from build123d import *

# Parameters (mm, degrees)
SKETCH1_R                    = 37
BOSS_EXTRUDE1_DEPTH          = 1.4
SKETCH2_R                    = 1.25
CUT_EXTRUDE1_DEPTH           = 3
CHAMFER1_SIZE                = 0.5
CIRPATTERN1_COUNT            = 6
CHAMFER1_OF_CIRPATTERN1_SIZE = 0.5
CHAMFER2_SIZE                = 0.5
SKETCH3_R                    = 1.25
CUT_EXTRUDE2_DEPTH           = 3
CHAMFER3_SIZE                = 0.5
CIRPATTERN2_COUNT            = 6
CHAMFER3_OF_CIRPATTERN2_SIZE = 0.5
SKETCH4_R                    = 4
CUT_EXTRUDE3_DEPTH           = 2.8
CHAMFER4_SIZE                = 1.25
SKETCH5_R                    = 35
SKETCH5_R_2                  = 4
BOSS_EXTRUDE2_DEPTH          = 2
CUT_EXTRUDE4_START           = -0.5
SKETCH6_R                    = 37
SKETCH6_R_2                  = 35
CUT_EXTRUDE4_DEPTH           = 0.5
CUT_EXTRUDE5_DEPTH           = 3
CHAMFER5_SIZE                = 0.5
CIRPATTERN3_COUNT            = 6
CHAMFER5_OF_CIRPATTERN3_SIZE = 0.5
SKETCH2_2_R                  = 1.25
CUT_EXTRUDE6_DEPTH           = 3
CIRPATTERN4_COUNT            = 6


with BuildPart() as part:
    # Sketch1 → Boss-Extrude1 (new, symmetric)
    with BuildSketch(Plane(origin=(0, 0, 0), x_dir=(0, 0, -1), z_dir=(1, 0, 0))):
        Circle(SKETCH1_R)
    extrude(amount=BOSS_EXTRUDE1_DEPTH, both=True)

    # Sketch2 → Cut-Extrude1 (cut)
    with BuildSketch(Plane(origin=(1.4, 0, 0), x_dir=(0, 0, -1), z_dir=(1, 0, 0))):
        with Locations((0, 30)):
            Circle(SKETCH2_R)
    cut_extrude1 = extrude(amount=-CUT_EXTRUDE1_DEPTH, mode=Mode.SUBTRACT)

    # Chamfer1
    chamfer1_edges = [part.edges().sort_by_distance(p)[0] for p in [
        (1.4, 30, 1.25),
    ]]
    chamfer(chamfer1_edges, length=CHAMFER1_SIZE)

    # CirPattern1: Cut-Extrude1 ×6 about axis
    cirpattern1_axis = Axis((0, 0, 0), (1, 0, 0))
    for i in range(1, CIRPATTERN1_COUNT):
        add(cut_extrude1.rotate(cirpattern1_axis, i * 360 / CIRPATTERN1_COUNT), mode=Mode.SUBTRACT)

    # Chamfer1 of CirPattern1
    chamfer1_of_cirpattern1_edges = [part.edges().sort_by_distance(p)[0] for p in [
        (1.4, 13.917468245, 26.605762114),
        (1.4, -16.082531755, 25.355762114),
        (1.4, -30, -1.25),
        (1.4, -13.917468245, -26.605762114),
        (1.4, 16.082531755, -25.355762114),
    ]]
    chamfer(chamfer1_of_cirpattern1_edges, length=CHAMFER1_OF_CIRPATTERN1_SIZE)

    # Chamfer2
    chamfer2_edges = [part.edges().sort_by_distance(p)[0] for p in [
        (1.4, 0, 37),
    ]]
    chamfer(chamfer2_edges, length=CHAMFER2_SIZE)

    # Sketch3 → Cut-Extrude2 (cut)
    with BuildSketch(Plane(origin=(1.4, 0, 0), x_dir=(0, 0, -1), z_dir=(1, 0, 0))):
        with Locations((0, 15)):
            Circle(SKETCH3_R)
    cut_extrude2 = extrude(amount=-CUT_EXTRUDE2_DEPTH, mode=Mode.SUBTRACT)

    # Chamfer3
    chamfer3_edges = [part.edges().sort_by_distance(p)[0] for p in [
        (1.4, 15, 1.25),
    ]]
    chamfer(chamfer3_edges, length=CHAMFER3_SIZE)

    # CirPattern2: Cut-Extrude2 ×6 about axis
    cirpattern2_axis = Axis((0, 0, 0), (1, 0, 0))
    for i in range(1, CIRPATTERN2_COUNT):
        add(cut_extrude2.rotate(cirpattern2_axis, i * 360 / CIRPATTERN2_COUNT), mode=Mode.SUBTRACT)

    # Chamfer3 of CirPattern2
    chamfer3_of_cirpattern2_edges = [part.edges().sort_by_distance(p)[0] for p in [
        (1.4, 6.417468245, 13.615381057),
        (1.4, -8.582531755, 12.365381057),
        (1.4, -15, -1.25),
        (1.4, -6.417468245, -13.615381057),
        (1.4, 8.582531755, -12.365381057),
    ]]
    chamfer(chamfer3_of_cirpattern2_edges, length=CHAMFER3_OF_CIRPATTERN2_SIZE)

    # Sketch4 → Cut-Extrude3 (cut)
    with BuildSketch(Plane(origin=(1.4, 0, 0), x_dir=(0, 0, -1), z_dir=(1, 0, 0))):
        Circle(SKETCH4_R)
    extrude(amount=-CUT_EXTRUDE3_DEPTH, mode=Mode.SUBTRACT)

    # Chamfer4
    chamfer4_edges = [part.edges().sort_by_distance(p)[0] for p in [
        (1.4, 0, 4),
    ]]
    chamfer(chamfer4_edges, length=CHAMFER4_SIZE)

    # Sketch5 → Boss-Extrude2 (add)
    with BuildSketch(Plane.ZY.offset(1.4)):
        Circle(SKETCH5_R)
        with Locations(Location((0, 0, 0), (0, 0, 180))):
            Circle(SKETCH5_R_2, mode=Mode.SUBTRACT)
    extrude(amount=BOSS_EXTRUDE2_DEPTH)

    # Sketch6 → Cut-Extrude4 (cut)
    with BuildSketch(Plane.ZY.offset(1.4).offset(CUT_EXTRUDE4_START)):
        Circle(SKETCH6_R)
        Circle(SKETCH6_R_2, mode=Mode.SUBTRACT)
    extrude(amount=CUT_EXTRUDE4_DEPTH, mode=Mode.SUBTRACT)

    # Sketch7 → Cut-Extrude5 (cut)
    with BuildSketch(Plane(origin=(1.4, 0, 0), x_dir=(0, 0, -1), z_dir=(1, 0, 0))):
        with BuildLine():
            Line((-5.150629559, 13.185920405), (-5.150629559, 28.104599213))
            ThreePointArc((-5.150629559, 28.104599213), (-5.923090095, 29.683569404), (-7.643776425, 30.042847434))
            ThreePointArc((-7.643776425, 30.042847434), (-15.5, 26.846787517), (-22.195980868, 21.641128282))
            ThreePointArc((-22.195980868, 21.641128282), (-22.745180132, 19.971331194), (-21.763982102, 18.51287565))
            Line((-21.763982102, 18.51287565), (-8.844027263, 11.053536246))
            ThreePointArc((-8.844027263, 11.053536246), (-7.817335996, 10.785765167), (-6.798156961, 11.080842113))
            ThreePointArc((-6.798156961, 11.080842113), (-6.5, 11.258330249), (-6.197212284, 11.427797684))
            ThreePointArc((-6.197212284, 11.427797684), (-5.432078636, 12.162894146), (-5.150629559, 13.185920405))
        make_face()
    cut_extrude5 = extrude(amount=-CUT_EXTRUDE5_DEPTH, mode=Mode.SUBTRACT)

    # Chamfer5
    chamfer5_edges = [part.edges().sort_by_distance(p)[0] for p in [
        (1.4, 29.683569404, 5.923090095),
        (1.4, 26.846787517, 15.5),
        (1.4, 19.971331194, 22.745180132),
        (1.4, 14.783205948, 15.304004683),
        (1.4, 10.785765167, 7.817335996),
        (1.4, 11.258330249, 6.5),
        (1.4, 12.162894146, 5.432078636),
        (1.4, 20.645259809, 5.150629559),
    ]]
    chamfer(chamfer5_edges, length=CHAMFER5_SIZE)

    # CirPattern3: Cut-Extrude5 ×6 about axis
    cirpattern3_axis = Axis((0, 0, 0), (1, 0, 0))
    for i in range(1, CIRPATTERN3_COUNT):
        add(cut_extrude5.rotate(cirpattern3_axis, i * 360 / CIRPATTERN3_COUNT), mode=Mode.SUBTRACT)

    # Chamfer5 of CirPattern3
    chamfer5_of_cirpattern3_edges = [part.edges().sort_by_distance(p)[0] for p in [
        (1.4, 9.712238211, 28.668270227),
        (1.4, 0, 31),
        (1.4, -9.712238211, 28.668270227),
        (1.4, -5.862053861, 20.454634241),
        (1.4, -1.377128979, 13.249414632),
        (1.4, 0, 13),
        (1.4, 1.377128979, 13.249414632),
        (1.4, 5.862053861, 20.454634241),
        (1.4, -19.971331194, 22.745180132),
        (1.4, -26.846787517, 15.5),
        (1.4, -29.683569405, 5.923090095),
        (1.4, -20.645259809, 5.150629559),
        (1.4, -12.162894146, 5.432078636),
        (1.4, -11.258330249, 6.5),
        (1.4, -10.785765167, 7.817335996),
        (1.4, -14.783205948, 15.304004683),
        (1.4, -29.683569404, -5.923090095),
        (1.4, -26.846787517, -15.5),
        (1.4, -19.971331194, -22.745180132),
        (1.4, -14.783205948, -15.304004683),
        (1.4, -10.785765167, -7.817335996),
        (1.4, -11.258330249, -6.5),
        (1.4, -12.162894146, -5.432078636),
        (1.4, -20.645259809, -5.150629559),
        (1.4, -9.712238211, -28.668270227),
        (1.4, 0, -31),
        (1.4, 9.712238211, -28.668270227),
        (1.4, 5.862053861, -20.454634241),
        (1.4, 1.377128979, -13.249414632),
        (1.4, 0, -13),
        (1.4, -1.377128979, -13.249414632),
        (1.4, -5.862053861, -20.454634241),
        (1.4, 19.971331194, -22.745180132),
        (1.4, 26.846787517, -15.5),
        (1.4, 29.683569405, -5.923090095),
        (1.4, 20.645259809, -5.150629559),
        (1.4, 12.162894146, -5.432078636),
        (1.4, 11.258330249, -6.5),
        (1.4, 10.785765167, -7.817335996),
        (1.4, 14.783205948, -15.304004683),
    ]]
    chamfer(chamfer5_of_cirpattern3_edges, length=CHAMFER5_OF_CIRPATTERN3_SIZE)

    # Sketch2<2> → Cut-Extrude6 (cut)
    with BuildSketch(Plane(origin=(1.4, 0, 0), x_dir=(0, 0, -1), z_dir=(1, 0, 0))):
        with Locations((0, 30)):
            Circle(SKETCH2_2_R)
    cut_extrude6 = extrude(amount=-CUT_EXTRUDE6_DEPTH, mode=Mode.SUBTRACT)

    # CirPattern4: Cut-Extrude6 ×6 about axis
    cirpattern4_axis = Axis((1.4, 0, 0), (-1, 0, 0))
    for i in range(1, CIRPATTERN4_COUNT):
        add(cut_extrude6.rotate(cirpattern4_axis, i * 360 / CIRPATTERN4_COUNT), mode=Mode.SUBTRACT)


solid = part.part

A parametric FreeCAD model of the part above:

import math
import FreeCAD as App
import Part
import Sketcher

V = App.Vector
Q = App.Units.Quantity


def edges_at(feature, points):
    """Names of the edges that pass closest to the given points."""
    edges = feature.Shape.Edges
    near = lambda p: min(range(len(edges)), key=lambda i: edges[i].distToShape(Part.Vertex(*p))[0])
    return sorted({f"Edge{near(p) + 1}" for p in points})

doc = App.newDocument("Part")
params = doc.addObject("Spreadsheet::Sheet", "Params")
for row, (alias, value) in enumerate([
    ("sketch1_diameter", "74 mm"),
    ("pad1_length", "2.8 mm"),
    ("sketch2_diameter", "2.5 mm"),
    ("pocket1_length", "3 mm"),
    ("chamfer_size", "0.5 mm"),
    ("chamfer2_size", "0.5 mm"),
    ("chamfer3_size", "0.5 mm"),
    ("sketch3_diameter", "2.5 mm"),
    ("pocket2_length", "3 mm"),
    ("chamfer4_size", "0.5 mm"),
    ("chamfer5_size", "0.5 mm"),
    ("sketch4_diameter", "8 mm"),
    ("pocket3_length", "2.8 mm"),
    ("chamfer6_size", "1.25 mm"),
    ("sketch5_diameter", "70 mm"),
    ("sketch5_diameter2", "8 mm"),
    ("pad2_length", "2 mm"),
    ("sketch6_diameter", "74 mm"),
    ("sketch6_diameter2", "70 mm"),
    ("pocket4_length", "0.5 mm"),
    ("sketch7_radius", "2 mm"),
    ("sketch7_radius2", "31 mm"),
    ("sketch7_radius3", "13 mm"),
    ("pocket5_length", "3 mm"),
    ("chamfer7_size", "0.5 mm"),
    ("chamfer8_size", "0.5 mm"),
    ("sketch8_diameter", "2.5 mm"),
    ("pocket6_length", "3 mm"),
], start=1):
    params.set(f"A{row}", alias)
    params.set(f"B{row}", "=" + value)
    params.setAlias(f"B{row}", alias)

body = doc.addObject("PartDesign::Body", "Body")

sketch1 = body.newObject("Sketcher::SketchObject", "Sketch")
sketch1.AttachmentSupport = (doc.getObject("YZ_Plane"), [""])
sketch1.MapMode = "FlatFace"
sketch1.addGeometry(Part.Circle(V(0, 0, 0), V(0, 0, 1), 37), False)
sketch1.addConstraint(Sketcher.Constraint("Coincident", 0, 3, -1, 1))
sketch1.addConstraint(Sketcher.Constraint("Diameter", 0, Q("74 mm")))
sketch1.setExpression("Constraints[1]", "Params.sketch1_diameter")
pad1 = body.newObject("PartDesign::Pad", "Pad")
pad1.Profile = sketch1
pad1.setExpression("Length", "Params.pad1_length")
pad1.Midplane = True

sketch2 = body.newObject("Sketcher::SketchObject", "Sketch001")
sketch2.AttachmentSupport = (doc.getObject("YZ_Plane"), [""])
sketch2.MapMode = "FlatFace"
sketch2.AttachmentOffset = App.Placement(V(0, 0, 1.4), App.Rotation())
sketch2.addGeometry(Part.Circle(V(30, 0, 0), V(0, 0, 1), 1.2), False)
sketch2.addConstraint(Sketcher.Constraint("PointOnObject", 0, 3, -1))
sketch2.addConstraint(Sketcher.Constraint("Diameter", 0, Q("2.5 mm")))
sketch2.addConstraint(Sketcher.Constraint("DistanceX", -1, 1, 0, 3, Q("30 mm")))
sketch2.setExpression("Constraints[1]", "Params.sketch2_diameter")
pocket1 = body.newObject("PartDesign::Pocket", "Pocket")
pocket1.Profile = sketch2
pocket1.setExpression("Length", "Params.pocket1_length")
doc.recompute()

chamfer = body.newObject("PartDesign::Chamfer", "Chamfer")
chamfer.Base = (pocket1, edges_at(pocket1, [(1.4, 30, 1.25)]))
chamfer.setExpression("Size", "Params.chamfer_size")
doc.recompute()

polarpattern = body.newObject("PartDesign::PolarPattern", "PolarPattern")
polarpattern.Originals = [pocket1]
polarpattern.Axis = (doc.getObject("X_Axis"), [""])
polarpattern.Angle = 360
polarpattern.Occurrences = 6
body.Tip = polarpattern
doc.recompute()

chamfer2 = body.newObject("PartDesign::Chamfer", "Chamfer001")
chamfer2.Base = (polarpattern, edges_at(polarpattern, [
    (1.4, 13.917, 26.606),
    (1.4, -16.083, 25.356),
    (1.4, -30, -1.25),
    (1.4, -13.917, -26.606),
    (1.4, 16.083, -25.356),
]))
chamfer2.setExpression("Size", "Params.chamfer2_size")
doc.recompute()

chamfer3 = body.newObject("PartDesign::Chamfer", "Chamfer002")
chamfer3.Base = (chamfer2, edges_at(chamfer2, [(1.4, 0, 37)]))
chamfer3.setExpression("Size", "Params.chamfer3_size")

sketch3 = body.newObject("Sketcher::SketchObject", "Sketch002")
sketch3.AttachmentSupport = (doc.getObject("YZ_Plane"), [""])
sketch3.MapMode = "FlatFace"
sketch3.AttachmentOffset = App.Placement(V(0, 0, 1.4), App.Rotation())
sketch3.addGeometry(Part.Circle(V(15, 0, 0), V(0, 0, 1), 1.2), False)
sketch3.addConstraint(Sketcher.Constraint("PointOnObject", 0, 3, -1))
sketch3.addConstraint(Sketcher.Constraint("Diameter", 0, Q("2.5 mm")))
sketch3.addConstraint(Sketcher.Constraint("DistanceX", -1, 1, 0, 3, Q("15 mm")))
sketch3.setExpression("Constraints[1]", "Params.sketch3_diameter")
pocket2 = body.newObject("PartDesign::Pocket", "Pocket001")
pocket2.Profile = sketch3
pocket2.setExpression("Length", "Params.pocket2_length")
doc.recompute()

chamfer4 = body.newObject("PartDesign::Chamfer", "Chamfer003")
chamfer4.Base = (pocket2, edges_at(pocket2, [(1.4, 15, 1.25)]))
chamfer4.setExpression("Size", "Params.chamfer4_size")
doc.recompute()

polarpattern2 = body.newObject("PartDesign::PolarPattern", "PolarPattern001")
polarpattern2.Originals = [pocket2]
polarpattern2.Axis = (doc.getObject("X_Axis"), [""])
polarpattern2.Angle = 360
polarpattern2.Occurrences = 6
body.Tip = polarpattern2
doc.recompute()

chamfer5 = body.newObject("PartDesign::Chamfer", "Chamfer004")
chamfer5.Base = (polarpattern2, edges_at(polarpattern2, [
    (1.4, 6.417, 13.615),
    (1.4, -8.583, 12.365),
    (1.4, -15, -1.25),
    (1.4, -6.417, -13.615),
    (1.4, 8.583, -12.365),
]))
chamfer5.setExpression("Size", "Params.chamfer5_size")

sketch4 = body.newObject("Sketcher::SketchObject", "Sketch003")
sketch4.AttachmentSupport = (doc.getObject("YZ_Plane"), [""])
sketch4.MapMode = "FlatFace"
sketch4.AttachmentOffset = App.Placement(V(0, 0, 1.4), App.Rotation())
sketch4.addGeometry(Part.Circle(V(0, 0, 0), V(0, 0, 1), 4), False)
sketch4.addConstraint(Sketcher.Constraint("Coincident", 0, 3, -1, 1))
sketch4.addConstraint(Sketcher.Constraint("Diameter", 0, Q("8 mm")))
sketch4.setExpression("Constraints[1]", "Params.sketch4_diameter")
pocket3 = body.newObject("PartDesign::Pocket", "Pocket002")
pocket3.Profile = sketch4
pocket3.setExpression("Length", "Params.pocket3_length")
doc.recompute()

chamfer6 = body.newObject("PartDesign::Chamfer", "Chamfer005")
chamfer6.Base = (pocket3, edges_at(pocket3, [(1.4, 0, 4)]))
chamfer6.setExpression("Size", "Params.chamfer6_size")

sketch5 = body.newObject("Sketcher::SketchObject", "Sketch004")
sketch5.AttachmentSupport = (doc.getObject("YZ_Plane"), [""])
sketch5.MapMode = "FlatFace"
sketch5.AttachmentOffset = App.Placement(V(0, 0, -1.4), App.Rotation())
sketch5.addGeometry(Part.Circle(V(0, 0, 0), V(0, 0, 1), 35), False)
sketch5.addGeometry(Part.Circle(V(0, 0, 0), V(0, 0, 1), 4), False)
sketch5.addConstraint(Sketcher.Constraint("Coincident", 0, 3, -1, 1))
sketch5.addConstraint(Sketcher.Constraint("Coincident", 1, 3, -1, 1))
sketch5.addConstraint(Sketcher.Constraint("Diameter", 0, Q("70 mm")))
sketch5.addConstraint(Sketcher.Constraint("Diameter", 1, Q("8 mm")))
sketch5.setExpression("Constraints[2]", "Params.sketch5_diameter")
sketch5.setExpression("Constraints[3]", "Params.sketch5_diameter2")
pad2 = body.newObject("PartDesign::Pad", "Pad001")
pad2.Profile = sketch5
pad2.setExpression("Length", "Params.pad2_length")
pad2.Reversed = True

sketch6 = body.newObject("Sketcher::SketchObject", "Sketch005")
sketch6.AttachmentSupport = (doc.getObject("YZ_Plane"), [""])
sketch6.MapMode = "FlatFace"
sketch6.AttachmentOffset = App.Placement(V(0, 0, -0.9), App.Rotation())
sketch6.addGeometry(Part.Circle(V(0, 0, 0), V(0, 0, 1), 37), False)
sketch6.addGeometry(Part.Circle(V(0, 0, 0), V(0, 0, 1), 35), False)
sketch6.addConstraint(Sketcher.Constraint("Coincident", 0, 3, -1, 1))
sketch6.addConstraint(Sketcher.Constraint("Coincident", 1, 3, -1, 1))
sketch6.addConstraint(Sketcher.Constraint("Diameter", 0, Q("74 mm")))
sketch6.addConstraint(Sketcher.Constraint("Diameter", 1, Q("70 mm")))
sketch6.setExpression("Constraints[2]", "Params.sketch6_diameter")
sketch6.setExpression("Constraints[3]", "Params.sketch6_diameter2")
pocket4 = body.newObject("PartDesign::Pocket", "Pocket003")
pocket4.Profile = sketch6
pocket4.setExpression("Length", "Params.pocket4_length")

sketch7 = body.newObject("Sketcher::SketchObject", "Sketch006")
sketch7.AttachmentSupport = (doc.getObject("YZ_Plane"), [""])
sketch7.MapMode = "FlatFace"
sketch7.AttachmentOffset = App.Placement(V(0, 0, 1.4), App.Rotation())
sketch7.addGeometry(Part.LineSegment(V(13.2, 5.2, 0), V(28.1, 5.2, 0)), False)
sketch7.addGeometry(Part.ArcOfCircle(Part.Circle(V(28.1, 7.2, 0), V(0, 0, 1), 2), math.radians(-90), math.radians(14)), False)
sketch7.addGeometry(Part.ArcOfCircle(Part.Circle(V(0, 0, 0), V(0, 0, 1), 31), math.radians(14), math.radians(46)), False)
sketch7.addGeometry(Part.ArcOfCircle(Part.Circle(V(20.2, 20.8, 0), V(0, 0, 1), 2), math.radians(46), math.radians(150)), False)
sketch7.addGeometry(Part.LineSegment(V(18.5, 21.8, 0), V(11.1, 8.8, 0)), False)
sketch7.addGeometry(Part.ArcOfCircle(Part.Circle(V(12.8, 7.8, 0), V(0, 0, 1), 2), math.radians(150), math.radians(212)), False)
sketch7.addGeometry(Part.ArcOfCircle(Part.Circle(V(0, 0, 0), V(0, 0, 1), 13), math.radians(28.47), math.radians(31.53)), False)
sketch7.addGeometry(Part.ArcOfCircle(Part.Circle(V(13.2, 7.2, 0), V(0, 0, 1), 2), math.radians(-152), math.radians(-90)), False)
sketch7.addConstraint(Sketcher.Constraint("Tangent", 0, 2, 1, 1))
sketch7.addConstraint(Sketcher.Constraint("Tangent", 1, 2, 2, 1))
sketch7.addConstraint(Sketcher.Constraint("Tangent", 2, 2, 3, 1))
sketch7.addConstraint(Sketcher.Constraint("Tangent", 3, 2, 4, 1))
sketch7.addConstraint(Sketcher.Constraint("Tangent", 4, 2, 5, 1))
sketch7.addConstraint(Sketcher.Constraint("Tangent", 5, 2, 6, 2))
sketch7.addConstraint(Sketcher.Constraint("Tangent", 6, 1, 7, 1))
sketch7.addConstraint(Sketcher.Constraint("Tangent", 7, 2, 0, 1))
sketch7.addConstraint(Sketcher.Constraint("Horizontal", 0))
sketch7.addConstraint(Sketcher.Constraint("Coincident", 2, 3, -1, 1))
sketch7.addConstraint(Sketcher.Constraint("Coincident", 6, 3, -1, 1))
sketch7.addConstraint(Sketcher.Constraint("Equal", 1, 3))
sketch7.addConstraint(Sketcher.Constraint("Equal", 3, 5))
sketch7.addConstraint(Sketcher.Constraint("Equal", 5, 7))
sketch7.addConstraint(Sketcher.Constraint("Radius", 1, Q("2 mm")))
sketch7.addConstraint(Sketcher.Constraint("Radius", 2, Q("31 mm")))
sketch7.addConstraint(Sketcher.Constraint("Radius", 6, Q("13 mm")))
sketch7.addConstraint(Sketcher.Constraint("Angle", 4, Q("-120 deg")))
sketch7.addConstraint(Sketcher.Constraint("DistanceX", 0, 1, 0, 2, Q("14.918679 mm")))
sketch7.addConstraint(Sketcher.Constraint("Distance", 4, Q("14.918679 mm")))
sketch7.setExpression("Constraints[14]", "Params.sketch7_radius")
sketch7.setExpression("Constraints[15]", "Params.sketch7_radius2")
sketch7.setExpression("Constraints[16]", "Params.sketch7_radius3")
pocket5 = body.newObject("PartDesign::Pocket", "Pocket004")
pocket5.Profile = sketch7
pocket5.setExpression("Length", "Params.pocket5_length")
doc.recompute()

chamfer7 = body.newObject("PartDesign::Chamfer", "Chamfer006")
chamfer7.Base = (pocket5, edges_at(pocket5, [
    (1.4, 29.684, 5.923),
    (1.4, 26.847, 15.5),
    (1.4, 19.971, 22.745),
    (1.4, 14.783, 15.304),
    (1.4, 10.786, 7.817),
    (1.4, 11.258, 6.5),
    (1.4, 12.163, 5.432),
    (1.4, 20.645, 5.151),
]))
chamfer7.setExpression("Size", "Params.chamfer7_size")
doc.recompute()

polarpattern3 = body.newObject("PartDesign::PolarPattern", "PolarPattern002")
polarpattern3.Originals = [pocket5]
polarpattern3.Axis = (doc.getObject("X_Axis"), [""])
polarpattern3.Angle = 360
polarpattern3.Occurrences = 6
body.Tip = polarpattern3
doc.recompute()

chamfer8 = body.newObject("PartDesign::Chamfer", "Chamfer007")
chamfer8.Base = (polarpattern3, edges_at(polarpattern3, [
    (1.4, 9.712, 28.668),
    (1.4, 0, 31),
    (1.4, -9.712, 28.668),
    (1.4, -5.862, 20.455),
    (1.4, -1.377, 13.249),
    (1.4, 0, 13),
    (1.4, 1.377, 13.249),
    (1.4, 5.862, 20.455),
    (1.4, -19.971, 22.745),
    (1.4, -26.847, 15.5),
    (1.4, -29.684, 5.923),
    (1.4, -20.645, 5.151),
    (1.4, -12.163, 5.432),
    (1.4, -11.258, 6.5),
    (1.4, -10.786, 7.817),
    (1.4, -14.783, 15.304),
    (1.4, -29.684, -5.923),
    (1.4, -26.847, -15.5),
    (1.4, -19.971, -22.745),
    (1.4, -14.783, -15.304),
    (1.4, -10.786, -7.817),
    (1.4, -11.258, -6.5),
    (1.4, -12.163, -5.432),
    (1.4, -20.645, -5.151),
    (1.4, -9.712, -28.668),
    (1.4, 0, -31),
    (1.4, 9.712, -28.668),
    (1.4, 5.862, -20.455),
    (1.4, 1.377, -13.249),
    (1.4, 0, -13),
    (1.4, -1.377, -13.249),
    (1.4, -5.862, -20.455),
    (1.4, 19.971, -22.745),
    (1.4, 26.847, -15.5),
    (1.4, 29.684, -5.923),
    (1.4, 20.645, -5.151),
    (1.4, 12.163, -5.432),
    (1.4, 11.258, -6.5),
    (1.4, 10.786, -7.817),
    (1.4, 14.783, -15.304),
]))
chamfer8.setExpression("Size", "Params.chamfer8_size")

sketch8 = body.newObject("Sketcher::SketchObject", "Sketch007")
sketch8.AttachmentSupport = (doc.getObject("YZ_Plane"), [""])
sketch8.MapMode = "FlatFace"
sketch8.AttachmentOffset = App.Placement(V(0, 0, 1.4), App.Rotation())
sketch8.addGeometry(Part.Circle(V(30, 0, 0), V(0, 0, 1), 1.2), False)
sketch8.addConstraint(Sketcher.Constraint("PointOnObject", 0, 3, -1))
sketch8.addConstraint(Sketcher.Constraint("Diameter", 0, Q("2.5 mm")))
sketch8.addConstraint(Sketcher.Constraint("DistanceX", -1, 1, 0, 3, Q("30 mm")))
sketch8.setExpression("Constraints[1]", "Params.sketch8_diameter")
pocket6 = body.newObject("PartDesign::Pocket", "Pocket005")
pocket6.Profile = sketch8
pocket6.setExpression("Length", "Params.pocket6_length")
doc.recompute()

polarpattern4 = body.newObject("PartDesign::PolarPattern", "PolarPattern003")
polarpattern4.Originals = [pocket6]
polarpattern4.Axis = (doc.getObject("X_Axis"), [""])
polarpattern4.Angle = 360
polarpattern4.Occurrences = 6
body.Tip = polarpattern4

doc.recompute()
